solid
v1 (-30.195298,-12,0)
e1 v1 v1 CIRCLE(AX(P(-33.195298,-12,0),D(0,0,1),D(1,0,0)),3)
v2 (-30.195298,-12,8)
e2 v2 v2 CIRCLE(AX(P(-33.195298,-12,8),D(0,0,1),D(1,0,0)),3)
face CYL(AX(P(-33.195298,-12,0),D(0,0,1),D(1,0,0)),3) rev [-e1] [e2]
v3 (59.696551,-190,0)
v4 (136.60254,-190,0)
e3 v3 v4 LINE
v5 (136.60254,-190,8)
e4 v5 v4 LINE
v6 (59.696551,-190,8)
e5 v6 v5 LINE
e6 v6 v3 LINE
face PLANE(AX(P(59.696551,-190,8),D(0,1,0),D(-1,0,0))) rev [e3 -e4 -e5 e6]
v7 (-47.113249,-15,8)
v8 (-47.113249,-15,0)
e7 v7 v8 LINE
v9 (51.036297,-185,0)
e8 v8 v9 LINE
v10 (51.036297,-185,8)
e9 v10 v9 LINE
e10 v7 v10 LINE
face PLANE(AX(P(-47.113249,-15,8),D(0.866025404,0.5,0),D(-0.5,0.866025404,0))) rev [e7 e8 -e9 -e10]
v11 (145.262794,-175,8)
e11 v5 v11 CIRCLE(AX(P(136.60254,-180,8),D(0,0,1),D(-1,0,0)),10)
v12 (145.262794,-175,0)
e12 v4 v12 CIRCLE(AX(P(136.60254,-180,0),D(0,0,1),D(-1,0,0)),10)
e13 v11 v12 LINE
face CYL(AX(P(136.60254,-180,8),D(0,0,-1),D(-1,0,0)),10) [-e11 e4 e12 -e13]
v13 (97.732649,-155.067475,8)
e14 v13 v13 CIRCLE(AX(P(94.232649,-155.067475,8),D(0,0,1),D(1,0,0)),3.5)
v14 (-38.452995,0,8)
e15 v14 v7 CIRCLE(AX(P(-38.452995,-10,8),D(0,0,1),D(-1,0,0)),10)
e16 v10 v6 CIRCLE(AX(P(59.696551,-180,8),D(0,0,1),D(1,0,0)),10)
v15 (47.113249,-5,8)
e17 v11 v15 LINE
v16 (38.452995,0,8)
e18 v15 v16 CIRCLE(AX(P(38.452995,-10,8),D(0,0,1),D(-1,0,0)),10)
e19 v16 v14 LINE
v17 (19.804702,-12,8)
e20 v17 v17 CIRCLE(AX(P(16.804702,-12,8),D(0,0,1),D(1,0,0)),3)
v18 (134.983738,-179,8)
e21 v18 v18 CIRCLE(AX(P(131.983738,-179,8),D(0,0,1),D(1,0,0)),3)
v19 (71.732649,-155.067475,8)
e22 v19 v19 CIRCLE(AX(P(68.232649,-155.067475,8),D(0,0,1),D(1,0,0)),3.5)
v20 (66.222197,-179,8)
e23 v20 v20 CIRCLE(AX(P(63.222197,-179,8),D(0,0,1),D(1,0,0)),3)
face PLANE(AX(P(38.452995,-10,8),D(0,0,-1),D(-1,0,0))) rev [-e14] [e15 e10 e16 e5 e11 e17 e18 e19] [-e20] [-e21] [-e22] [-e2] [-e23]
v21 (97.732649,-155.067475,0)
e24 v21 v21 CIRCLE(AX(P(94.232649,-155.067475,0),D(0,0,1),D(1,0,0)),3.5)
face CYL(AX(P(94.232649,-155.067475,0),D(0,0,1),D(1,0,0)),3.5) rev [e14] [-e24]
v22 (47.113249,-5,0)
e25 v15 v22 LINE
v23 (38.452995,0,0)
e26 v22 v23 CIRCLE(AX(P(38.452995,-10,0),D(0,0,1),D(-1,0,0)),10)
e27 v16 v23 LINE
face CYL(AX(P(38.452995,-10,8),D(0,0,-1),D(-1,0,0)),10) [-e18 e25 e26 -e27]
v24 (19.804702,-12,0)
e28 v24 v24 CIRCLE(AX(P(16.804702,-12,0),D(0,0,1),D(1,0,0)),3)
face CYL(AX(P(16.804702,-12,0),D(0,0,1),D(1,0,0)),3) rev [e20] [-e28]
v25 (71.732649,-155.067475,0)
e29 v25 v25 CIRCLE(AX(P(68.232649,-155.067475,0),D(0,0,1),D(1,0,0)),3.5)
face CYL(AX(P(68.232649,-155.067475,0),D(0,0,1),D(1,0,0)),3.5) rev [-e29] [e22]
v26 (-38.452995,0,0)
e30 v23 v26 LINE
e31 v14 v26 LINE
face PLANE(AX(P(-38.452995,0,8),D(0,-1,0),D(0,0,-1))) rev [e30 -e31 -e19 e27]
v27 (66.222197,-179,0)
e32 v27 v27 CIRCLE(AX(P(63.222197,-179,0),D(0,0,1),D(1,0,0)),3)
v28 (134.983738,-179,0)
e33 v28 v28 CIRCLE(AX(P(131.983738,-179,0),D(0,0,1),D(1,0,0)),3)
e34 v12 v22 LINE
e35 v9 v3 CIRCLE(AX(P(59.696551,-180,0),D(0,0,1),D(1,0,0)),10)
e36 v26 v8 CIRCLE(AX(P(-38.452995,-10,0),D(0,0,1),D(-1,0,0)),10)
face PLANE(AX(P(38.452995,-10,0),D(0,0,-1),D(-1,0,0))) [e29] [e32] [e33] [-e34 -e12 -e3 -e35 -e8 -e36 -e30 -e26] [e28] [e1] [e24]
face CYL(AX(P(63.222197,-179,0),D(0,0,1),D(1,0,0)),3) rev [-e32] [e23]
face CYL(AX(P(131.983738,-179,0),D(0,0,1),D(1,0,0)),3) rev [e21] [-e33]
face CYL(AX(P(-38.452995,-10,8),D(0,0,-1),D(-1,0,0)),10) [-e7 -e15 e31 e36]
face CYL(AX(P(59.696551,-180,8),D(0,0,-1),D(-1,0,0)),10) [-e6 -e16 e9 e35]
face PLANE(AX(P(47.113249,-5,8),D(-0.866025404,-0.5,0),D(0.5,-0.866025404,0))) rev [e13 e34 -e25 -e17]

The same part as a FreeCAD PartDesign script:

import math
import FreeCAD as App
import Part
import Sketcher
from FreeCAD import Vector
Q = App.Units.Quantity

doc = App.newDocument("Part")
body = doc.addObject("PartDesign::Body", "Body")

# Sketch on XY plane
sketch1 = body.newObject("Sketcher::SketchObject", "Sketch")
sketch1.AttachmentSupport = (doc.getObject("XY_Plane"), [""])
sketch1.MapMode = "FlatFace"
sketch1.addGeometry([
    Part.LineSegment(Vector(38, 0, 0), Vector(-38, 0, 0)),  # 0
    Part.ArcOfCircle(Part.Circle(Vector(-38, -10, 0), Vector(0, 0, 1), 10), math.radians(90), math.radians(210)),  # 1
    Part.LineSegment(Vector(-47, -15, 0), Vector(51, -185, 0)),  # 2
    Part.ArcOfCircle(Part.Circle(Vector(60, -180, 0), Vector(0, 0, 1), 10), math.radians(-150), math.radians(-90)),  # 3
    Part.LineSegment(Vector(60, -190, 0), Vector(137, -190, 0)),  # 4
    Part.ArcOfCircle(Part.Circle(Vector(137, -180, 0), Vector(0, 0, 1), 10), math.radians(-90), math.radians(30)),  # 5
    Part.LineSegment(Vector(145, -175, 0), Vector(47, -5, 0)),  # 6
    Part.ArcOfCircle(Part.Circle(Vector(38, -10, 0), Vector(0, 0, 1), 10), math.radians(30), math.radians(90)),  # 7
], False)
sketch1.addConstraint([
    Sketcher.Constraint("Tangent", 0, 2, 1, 1),
    Sketcher.Constraint("Tangent", 1, 2, 2, 1),
    Sketcher.Constraint("Tangent", 2, 2, 3, 1),
    Sketcher.Constraint("Tangent", 3, 2, 4, 1),
    Sketcher.Constraint("Tangent", 4, 2, 5, 1),
    Sketcher.Constraint("Tangent", 5, 2, 6, 1),
    Sketcher.Constraint("Tangent", 6, 2, 7, 1),
    Sketcher.Constraint("Tangent", 7, 2, 0, 1),
    Sketcher.Constraint("Horizontal", 0),
    Sketcher.Constraint("Horizontal", 4),
    Sketcher.Constraint("Equal", 1, 3),
    Sketcher.Constraint("Equal", 3, 5),
    Sketcher.Constraint("Equal", 5, 7),
    Sketcher.Constraint("Symmetric", 0, 2, 7, 2, -1, 1),
    Sketcher.Constraint("Parallel", 2, 6),
    Sketcher.Constraint("Radius", 1, 10.0),
    Sketcher.Constraint("Angle", 2, Q("-60 deg")),
    Sketcher.Constraint("DistanceY", 3, 3, -1, 1, 180.0),
    Sketcher.Constraint("DistanceX", 0, 2, 0, 1, 76.905989),
])
pad1 = body.newObject("PartDesign::Pad", "Pad")
pad1.Profile = sketch1
pad1.Length = 8

# Sketch on XY plane
sketch2 = body.newObject("Sketcher::SketchObject", "Sketch001")
sketch2.AttachmentSupport = (doc.getObject("XY_Plane"), [""])
sketch2.MapMode = "FlatFace"
sketch2.AttachmentOffset = App.Placement(Vector(0, 0, 8), App.Rotation())
sketch2.addGeometry([
    Part.Circle(Vector(-33.2, -12, 0), Vector(0, 0, 1), 3),  # 0
    Part.Circle(Vector(16.8, -12, 0), Vector(0, 0, 1), 3),  # 1
    Part.Circle(Vector(68.2, -155.1, 0), Vector(0, 0, 1), 3.5),  # 2
    Part.Circle(Vector(94.2, -155.1, 0), Vector(0, 0, 1), 3.5),  # 3
    Part.Circle(Vector(63.2, -179, 0), Vector(0, 0, 1), 3),  # 4
    Part.Circle(Vector(132, -179, 0), Vector(0, 0, 1), 3),  # 5
], False)
sketch2.addConstraint([
    Sketcher.Constraint("Equal", 0, 1),
    Sketcher.Constraint("Equal", 2, 3),
    Sketcher.Constraint("Equal", 1, 4),
    Sketcher.Constraint("Equal", 4, 5),
    Sketcher.Constraint("Horizontal", 0, 3, 1, 3),
    Sketcher.Constraint("Horizontal", 2, 3, 3, 3),
    Sketcher.Constraint("Horizontal", 4, 3, 5, 3),
    Sketcher.Constraint("Diameter", 0, 6.0),
    Sketcher.Constraint("Diameter", 2, 7.0),
    Sketcher.Constraint("DistanceY", 0, 3, -1, 1, 12.0),
    Sketcher.Constraint("DistanceY", 4, 3, -1, 1, 179.0),
    Sketcher.Constraint("DistanceX", 0, 3, 1, 3, 50.0),
    Sketcher.Constraint("DistanceX", 2, 3, 3, 3, 26.0),
    Sketcher.Constraint("DistanceX", -1, 1, 2, 3, 68.232649),
    Sketcher.Constraint("DistanceX", -1, 1, 5, 3, 131.983738),
    Sketcher.Constraint("DistanceX", 4, 3, 2, 3, 5.010452),
    Sketcher.Constraint("DistanceX", 0, 3, -1, 1, 33.195298),
    Sketcher.Constraint("DistanceY", 2, 3, -1, 1, 155.067475),
])
pocket1 = body.newObject("PartDesign::Pocket", "Pocket")
pocket1.Profile = sketch2
pocket1.Type = "ThroughAll"

doc.recompute()
